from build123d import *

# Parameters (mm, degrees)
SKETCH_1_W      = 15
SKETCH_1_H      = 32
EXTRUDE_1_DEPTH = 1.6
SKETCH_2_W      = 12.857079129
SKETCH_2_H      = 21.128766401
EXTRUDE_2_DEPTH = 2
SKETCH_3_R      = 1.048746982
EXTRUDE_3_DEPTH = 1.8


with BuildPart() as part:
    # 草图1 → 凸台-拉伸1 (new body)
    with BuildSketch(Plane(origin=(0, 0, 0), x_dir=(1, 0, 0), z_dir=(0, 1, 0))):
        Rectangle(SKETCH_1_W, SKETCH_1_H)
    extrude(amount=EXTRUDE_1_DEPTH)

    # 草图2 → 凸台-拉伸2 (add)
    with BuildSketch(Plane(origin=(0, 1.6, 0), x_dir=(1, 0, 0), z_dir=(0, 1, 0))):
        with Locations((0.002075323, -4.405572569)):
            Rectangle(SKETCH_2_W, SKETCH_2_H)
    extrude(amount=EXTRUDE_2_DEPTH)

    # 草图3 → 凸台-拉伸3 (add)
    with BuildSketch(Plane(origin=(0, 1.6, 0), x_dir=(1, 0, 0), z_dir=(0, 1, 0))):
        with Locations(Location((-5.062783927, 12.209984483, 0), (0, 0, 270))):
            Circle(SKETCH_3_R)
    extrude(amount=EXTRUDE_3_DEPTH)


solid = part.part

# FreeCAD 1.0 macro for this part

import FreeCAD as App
import Part
import Sketcher
Q = App.Units.Quantity


def add_polygon(sketch, points):
    """Adds a closed chain of lines whose ends are joined by coincident constraints."""
    first, n = sketch.GeometryCount, len(points)
    for a, b in zip(points, points[1:] + points[:1]):
        sketch.addGeometry(Part.LineSegment(App.Vector(*a, 0), App.Vector(*b, 0)), False)
    for i in range(n):
        sketch.addConstraint(Sketcher.Constraint("Coincident", first + i, 2, first + (i + 1) % n, 1))

doc = App.newDocument("Part")
body = doc.addObject("PartDesign::Body", "Body")

# Sketch on XZ plane
sketch1 = body.newObject("Sketcher::SketchObject", "Sketch")
sketch1.AttachmentSupport = (doc.getObject("XZ_Plane"), [""])
sketch1.MapMode = "FlatFace"
add_polygon(sketch1, [(-8, -16), (-8, 16), (8, 16), (8, -16)])  # lines 0-3
sketch1.addConstraint(Sketcher.Constraint("Vertical", 0))
sketch1.addConstraint(Sketcher.Constraint("Horizontal", 1))
sketch1.addConstraint(Sketcher.Constraint("Vertical", 2))
sketch1.addConstraint(Sketcher.Constraint("Horizontal", 3))
sketch1.addConstraint(Sketcher.Constraint("Symmetric", 0, 2, 2, 2, -1, 1))
sketch1.addConstraint(Sketcher.Constraint("DistanceX", 1, 1, 1, 2, Q("15 mm")))
sketch1.addConstraint(Sketcher.Constraint("DistanceY", 0, 1, 0, 2, Q("32 mm")))
pad1 = body.newObject("PartDesign::Pad", "Pad")
pad1.Profile = sketch1
pad1.Length = 1.6
pad1.Reversed = True

# Sketch on XZ plane
sketch2 = body.newObject("Sketcher::SketchObject", "Sketch001")
sketch2.AttachmentSupport = (doc.getObject("XZ_Plane"), [""])
sketch2.MapMode = "FlatFace"
sketch2.AttachmentOffset = App.Placement(App.Vector(0, 0, -1.6), App.Rotation())
add_polygon(sketch2, [(-6, -6), (-6, 15), (6, 15), (6, -6)])  # lines 0-3
sketch2.addConstraint(Sketcher.Constraint("Vertical", 0))
sketch2.addConstraint(Sketcher.Constraint("Horizontal", 1))
sketch2.addConstraint(Sketcher.Constraint("Vertical", 2))
sketch2.addConstraint(Sketcher.Constraint("Horizontal", 3))
sketch2.addConstraint(Sketcher.Constraint("DistanceX", 1, 1, 1, 2, Q("12.857079 mm")))
sketch2.addConstraint(Sketcher.Constraint("DistanceY", 0, 1, 0, 2, Q("21.128766 mm")))
sketch2.addConstraint(Sketcher.Constraint("DistanceY", 2, 2, -1, 1, Q("6.158811 mm")))
sketch2.addConstraint(Sketcher.Constraint("DistanceX", 0, 2, -1, 1, Q("6.426464 mm")))
pad2 = body.newObject("PartDesign::Pad", "Pad001")
pad2.Profile = sketch2
pad2.Length = 2
pad2.Reversed = True

# Sketch on XZ plane
sketch3 = body.newObject("Sketcher::SketchObject", "Sketch002")
sketch3.AttachmentSupport = (doc.getObject("XZ_Plane"), [""])
sketch3.MapMode = "FlatFace"
sketch3.AttachmentOffset = App.Placement(App.Vector(0, 0, -1.6), App.Rotation())
sketch3.addGeometry(Part.Circle(App.Vector(-5.1, -12.2, 0), App.Vector(0, 0, 1), 1), False)
sketch3.addConstraint(Sketcher.Constraint("Diameter", 0, Q("2.097494 mm")))
sketch3.addConstraint(Sketcher.Constraint("DistanceX", 0, 3, -1, 1, Q("5.062784 mm")))
sketch3.addConstraint(Sketcher.Constraint("DistanceY", 0, 3, -1, 1, Q("12.209984 mm")))
pad3 = body.newObject("PartDesign::Pad", "Pad002")
pad3.Profile = sketch3
pad3.Length = 1.8
pad3.Reversed = True

doc.recompute()
